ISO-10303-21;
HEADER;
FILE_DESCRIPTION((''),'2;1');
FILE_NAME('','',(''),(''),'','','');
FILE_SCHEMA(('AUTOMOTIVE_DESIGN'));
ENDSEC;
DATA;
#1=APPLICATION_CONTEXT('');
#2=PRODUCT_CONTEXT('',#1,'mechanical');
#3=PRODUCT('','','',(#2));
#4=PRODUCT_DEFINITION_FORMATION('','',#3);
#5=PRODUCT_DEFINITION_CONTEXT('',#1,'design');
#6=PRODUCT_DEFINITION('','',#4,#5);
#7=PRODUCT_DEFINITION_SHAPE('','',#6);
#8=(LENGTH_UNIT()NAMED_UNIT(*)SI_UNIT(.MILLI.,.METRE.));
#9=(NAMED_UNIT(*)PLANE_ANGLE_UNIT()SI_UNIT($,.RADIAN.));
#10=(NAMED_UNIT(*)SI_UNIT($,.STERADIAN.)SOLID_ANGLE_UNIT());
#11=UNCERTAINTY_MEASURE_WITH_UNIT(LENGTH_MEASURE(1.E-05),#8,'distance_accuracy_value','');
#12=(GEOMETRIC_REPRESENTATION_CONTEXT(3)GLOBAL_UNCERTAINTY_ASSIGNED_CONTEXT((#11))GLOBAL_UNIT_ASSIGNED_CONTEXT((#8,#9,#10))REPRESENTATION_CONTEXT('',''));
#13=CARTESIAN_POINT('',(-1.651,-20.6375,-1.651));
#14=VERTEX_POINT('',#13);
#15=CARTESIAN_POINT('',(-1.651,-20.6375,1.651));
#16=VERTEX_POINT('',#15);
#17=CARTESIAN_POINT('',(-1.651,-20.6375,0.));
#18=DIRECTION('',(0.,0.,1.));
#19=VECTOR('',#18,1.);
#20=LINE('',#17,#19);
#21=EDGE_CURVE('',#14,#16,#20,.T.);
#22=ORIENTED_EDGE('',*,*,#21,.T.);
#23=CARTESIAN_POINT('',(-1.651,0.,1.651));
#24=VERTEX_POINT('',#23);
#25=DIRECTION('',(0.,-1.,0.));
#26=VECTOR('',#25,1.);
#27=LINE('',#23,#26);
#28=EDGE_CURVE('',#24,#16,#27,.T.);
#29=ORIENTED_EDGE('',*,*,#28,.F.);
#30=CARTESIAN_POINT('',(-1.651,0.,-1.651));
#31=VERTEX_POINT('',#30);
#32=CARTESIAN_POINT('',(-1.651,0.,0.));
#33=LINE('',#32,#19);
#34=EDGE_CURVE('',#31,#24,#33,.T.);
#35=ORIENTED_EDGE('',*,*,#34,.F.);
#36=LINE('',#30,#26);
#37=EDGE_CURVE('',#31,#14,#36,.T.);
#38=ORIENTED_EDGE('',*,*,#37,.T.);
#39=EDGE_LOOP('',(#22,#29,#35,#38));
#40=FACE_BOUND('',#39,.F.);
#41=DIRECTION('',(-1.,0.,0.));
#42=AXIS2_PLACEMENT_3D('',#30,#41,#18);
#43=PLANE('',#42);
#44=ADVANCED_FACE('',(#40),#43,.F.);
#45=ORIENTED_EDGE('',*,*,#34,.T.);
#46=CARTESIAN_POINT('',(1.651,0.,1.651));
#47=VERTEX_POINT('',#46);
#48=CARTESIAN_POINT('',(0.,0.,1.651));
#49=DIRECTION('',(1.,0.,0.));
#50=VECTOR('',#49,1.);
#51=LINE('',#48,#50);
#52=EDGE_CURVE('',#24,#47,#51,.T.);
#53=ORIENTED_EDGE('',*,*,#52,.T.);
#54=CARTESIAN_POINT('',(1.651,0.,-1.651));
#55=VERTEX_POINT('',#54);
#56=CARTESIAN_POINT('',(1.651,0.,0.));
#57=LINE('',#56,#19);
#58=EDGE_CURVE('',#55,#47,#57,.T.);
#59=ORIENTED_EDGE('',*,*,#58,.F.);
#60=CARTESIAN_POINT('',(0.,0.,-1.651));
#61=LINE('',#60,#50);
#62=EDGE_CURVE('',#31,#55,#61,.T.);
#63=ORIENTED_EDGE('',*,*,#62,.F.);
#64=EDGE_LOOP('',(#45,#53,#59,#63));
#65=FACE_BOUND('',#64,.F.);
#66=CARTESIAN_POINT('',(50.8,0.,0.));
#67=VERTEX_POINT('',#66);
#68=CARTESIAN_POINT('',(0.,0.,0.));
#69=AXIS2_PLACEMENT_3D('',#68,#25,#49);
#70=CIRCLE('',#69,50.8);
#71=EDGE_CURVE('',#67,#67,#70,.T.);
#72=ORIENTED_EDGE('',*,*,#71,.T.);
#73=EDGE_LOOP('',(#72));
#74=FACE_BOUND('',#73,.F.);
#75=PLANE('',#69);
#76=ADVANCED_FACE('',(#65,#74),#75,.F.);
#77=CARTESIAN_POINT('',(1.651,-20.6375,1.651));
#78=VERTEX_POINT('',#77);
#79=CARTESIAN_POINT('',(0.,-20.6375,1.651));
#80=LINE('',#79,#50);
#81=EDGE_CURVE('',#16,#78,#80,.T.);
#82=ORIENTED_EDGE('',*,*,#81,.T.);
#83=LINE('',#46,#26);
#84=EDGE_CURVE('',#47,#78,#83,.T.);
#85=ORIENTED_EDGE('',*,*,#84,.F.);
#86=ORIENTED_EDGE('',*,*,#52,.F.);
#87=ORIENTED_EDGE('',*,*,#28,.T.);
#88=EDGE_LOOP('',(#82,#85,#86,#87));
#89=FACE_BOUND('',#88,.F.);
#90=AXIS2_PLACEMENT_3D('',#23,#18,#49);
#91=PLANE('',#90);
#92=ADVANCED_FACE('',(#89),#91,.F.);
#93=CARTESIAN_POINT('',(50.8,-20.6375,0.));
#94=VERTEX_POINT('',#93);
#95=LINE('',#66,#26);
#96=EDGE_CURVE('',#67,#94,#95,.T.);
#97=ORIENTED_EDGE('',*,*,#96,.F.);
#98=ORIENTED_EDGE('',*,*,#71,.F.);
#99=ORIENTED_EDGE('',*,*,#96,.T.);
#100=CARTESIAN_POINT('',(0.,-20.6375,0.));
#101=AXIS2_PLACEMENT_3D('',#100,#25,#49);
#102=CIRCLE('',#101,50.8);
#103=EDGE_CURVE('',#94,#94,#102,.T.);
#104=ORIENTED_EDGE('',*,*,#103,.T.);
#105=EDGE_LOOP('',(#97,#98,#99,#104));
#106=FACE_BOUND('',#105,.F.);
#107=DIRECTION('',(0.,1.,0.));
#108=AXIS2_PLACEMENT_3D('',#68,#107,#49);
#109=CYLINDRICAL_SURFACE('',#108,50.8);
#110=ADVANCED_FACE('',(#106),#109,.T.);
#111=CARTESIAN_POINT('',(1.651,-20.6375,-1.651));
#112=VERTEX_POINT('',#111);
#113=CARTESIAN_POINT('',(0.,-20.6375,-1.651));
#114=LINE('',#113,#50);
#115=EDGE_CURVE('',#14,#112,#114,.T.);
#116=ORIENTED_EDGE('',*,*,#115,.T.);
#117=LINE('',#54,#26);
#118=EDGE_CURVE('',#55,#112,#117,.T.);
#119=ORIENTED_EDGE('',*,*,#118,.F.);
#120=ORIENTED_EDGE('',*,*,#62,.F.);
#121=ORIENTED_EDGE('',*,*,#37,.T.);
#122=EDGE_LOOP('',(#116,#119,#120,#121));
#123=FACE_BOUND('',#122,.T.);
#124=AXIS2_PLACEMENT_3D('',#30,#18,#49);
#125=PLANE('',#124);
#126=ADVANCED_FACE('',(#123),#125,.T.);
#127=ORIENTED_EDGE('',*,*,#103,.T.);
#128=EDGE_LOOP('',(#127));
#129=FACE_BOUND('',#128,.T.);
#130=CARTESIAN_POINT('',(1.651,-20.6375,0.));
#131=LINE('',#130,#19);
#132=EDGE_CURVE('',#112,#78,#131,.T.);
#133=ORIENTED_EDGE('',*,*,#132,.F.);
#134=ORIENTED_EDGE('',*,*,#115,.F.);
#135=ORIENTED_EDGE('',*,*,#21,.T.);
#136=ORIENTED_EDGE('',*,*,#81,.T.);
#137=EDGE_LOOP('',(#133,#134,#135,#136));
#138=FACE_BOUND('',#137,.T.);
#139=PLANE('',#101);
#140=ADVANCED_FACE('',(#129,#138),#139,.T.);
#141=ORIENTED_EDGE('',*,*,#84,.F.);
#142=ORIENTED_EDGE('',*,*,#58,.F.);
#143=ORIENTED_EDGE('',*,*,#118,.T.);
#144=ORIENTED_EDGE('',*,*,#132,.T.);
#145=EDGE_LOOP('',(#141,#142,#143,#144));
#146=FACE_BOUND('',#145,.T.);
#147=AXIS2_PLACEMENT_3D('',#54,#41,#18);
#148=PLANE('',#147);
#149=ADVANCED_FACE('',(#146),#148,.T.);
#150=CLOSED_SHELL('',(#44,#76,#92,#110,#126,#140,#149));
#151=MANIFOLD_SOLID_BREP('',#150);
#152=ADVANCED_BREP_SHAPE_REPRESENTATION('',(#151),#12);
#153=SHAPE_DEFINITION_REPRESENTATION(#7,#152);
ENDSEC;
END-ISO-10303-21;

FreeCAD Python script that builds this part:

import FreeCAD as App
import Part
import Sketcher
Q = App.Units.Quantity


def add_polygon(sketch, points):
    """Adds a closed chain of lines whose ends are joined by coincident constraints."""
    first, n = sketch.GeometryCount, len(points)
    for a, b in zip(points, points[1:] + points[:1]):
        sketch.addGeometry(Part.LineSegment(App.Vector(*a, 0), App.Vector(*b, 0)), False)
    for i in range(n):
        sketch.addConstraint(Sketcher.Constraint("Coincident", first + i, 2, first + (i + 1) % n, 1))

doc = App.newDocument("Part")
body = doc.addObject("PartDesign::Body", "Body")

# Sketch on XZ plane
sketch1 = body.newObject("Sketcher::SketchObject", "Sketch")
sketch1.AttachmentSupport = (doc.getObject("XZ_Plane"), [""])
sketch1.MapMode = "FlatFace"
sketch1.addGeometry(Part.Circle(App.Vector(0, 0, 0), App.Vector(0, 0, 1), 50.8), False)  # 0
add_polygon(sketch1, [(1.651, -1.651), (-1.651, -1.651), (-1.651, 1.651), (1.651, 1.651)])  # lines 1-4
sketch1.addConstraint([
    Sketcher.Constraint("Horizontal", 1),
    Sketcher.Constraint("Vertical", 2),
    Sketcher.Constraint("Horizontal", 3),
    Sketcher.Constraint("Vertical", 4),
    Sketcher.Constraint("Coincident", 0, 3, -1, 1),
    Sketcher.Constraint("Symmetric", 1, 2, 3, 2, -1, 1),
    Sketcher.Constraint("Equal", 3, 2),
    Sketcher.Constraint("Diameter", 0, Q("4 in")),
    Sketcher.Constraint("DistanceX", 1, 2, 1, 1, Q("0.13 in")),
])
pad1 = body.newObject("PartDesign::Pad", "Pad")
pad1.Profile = sketch1
pad1.Length = Q("0.8125 in")

doc.recompute()
